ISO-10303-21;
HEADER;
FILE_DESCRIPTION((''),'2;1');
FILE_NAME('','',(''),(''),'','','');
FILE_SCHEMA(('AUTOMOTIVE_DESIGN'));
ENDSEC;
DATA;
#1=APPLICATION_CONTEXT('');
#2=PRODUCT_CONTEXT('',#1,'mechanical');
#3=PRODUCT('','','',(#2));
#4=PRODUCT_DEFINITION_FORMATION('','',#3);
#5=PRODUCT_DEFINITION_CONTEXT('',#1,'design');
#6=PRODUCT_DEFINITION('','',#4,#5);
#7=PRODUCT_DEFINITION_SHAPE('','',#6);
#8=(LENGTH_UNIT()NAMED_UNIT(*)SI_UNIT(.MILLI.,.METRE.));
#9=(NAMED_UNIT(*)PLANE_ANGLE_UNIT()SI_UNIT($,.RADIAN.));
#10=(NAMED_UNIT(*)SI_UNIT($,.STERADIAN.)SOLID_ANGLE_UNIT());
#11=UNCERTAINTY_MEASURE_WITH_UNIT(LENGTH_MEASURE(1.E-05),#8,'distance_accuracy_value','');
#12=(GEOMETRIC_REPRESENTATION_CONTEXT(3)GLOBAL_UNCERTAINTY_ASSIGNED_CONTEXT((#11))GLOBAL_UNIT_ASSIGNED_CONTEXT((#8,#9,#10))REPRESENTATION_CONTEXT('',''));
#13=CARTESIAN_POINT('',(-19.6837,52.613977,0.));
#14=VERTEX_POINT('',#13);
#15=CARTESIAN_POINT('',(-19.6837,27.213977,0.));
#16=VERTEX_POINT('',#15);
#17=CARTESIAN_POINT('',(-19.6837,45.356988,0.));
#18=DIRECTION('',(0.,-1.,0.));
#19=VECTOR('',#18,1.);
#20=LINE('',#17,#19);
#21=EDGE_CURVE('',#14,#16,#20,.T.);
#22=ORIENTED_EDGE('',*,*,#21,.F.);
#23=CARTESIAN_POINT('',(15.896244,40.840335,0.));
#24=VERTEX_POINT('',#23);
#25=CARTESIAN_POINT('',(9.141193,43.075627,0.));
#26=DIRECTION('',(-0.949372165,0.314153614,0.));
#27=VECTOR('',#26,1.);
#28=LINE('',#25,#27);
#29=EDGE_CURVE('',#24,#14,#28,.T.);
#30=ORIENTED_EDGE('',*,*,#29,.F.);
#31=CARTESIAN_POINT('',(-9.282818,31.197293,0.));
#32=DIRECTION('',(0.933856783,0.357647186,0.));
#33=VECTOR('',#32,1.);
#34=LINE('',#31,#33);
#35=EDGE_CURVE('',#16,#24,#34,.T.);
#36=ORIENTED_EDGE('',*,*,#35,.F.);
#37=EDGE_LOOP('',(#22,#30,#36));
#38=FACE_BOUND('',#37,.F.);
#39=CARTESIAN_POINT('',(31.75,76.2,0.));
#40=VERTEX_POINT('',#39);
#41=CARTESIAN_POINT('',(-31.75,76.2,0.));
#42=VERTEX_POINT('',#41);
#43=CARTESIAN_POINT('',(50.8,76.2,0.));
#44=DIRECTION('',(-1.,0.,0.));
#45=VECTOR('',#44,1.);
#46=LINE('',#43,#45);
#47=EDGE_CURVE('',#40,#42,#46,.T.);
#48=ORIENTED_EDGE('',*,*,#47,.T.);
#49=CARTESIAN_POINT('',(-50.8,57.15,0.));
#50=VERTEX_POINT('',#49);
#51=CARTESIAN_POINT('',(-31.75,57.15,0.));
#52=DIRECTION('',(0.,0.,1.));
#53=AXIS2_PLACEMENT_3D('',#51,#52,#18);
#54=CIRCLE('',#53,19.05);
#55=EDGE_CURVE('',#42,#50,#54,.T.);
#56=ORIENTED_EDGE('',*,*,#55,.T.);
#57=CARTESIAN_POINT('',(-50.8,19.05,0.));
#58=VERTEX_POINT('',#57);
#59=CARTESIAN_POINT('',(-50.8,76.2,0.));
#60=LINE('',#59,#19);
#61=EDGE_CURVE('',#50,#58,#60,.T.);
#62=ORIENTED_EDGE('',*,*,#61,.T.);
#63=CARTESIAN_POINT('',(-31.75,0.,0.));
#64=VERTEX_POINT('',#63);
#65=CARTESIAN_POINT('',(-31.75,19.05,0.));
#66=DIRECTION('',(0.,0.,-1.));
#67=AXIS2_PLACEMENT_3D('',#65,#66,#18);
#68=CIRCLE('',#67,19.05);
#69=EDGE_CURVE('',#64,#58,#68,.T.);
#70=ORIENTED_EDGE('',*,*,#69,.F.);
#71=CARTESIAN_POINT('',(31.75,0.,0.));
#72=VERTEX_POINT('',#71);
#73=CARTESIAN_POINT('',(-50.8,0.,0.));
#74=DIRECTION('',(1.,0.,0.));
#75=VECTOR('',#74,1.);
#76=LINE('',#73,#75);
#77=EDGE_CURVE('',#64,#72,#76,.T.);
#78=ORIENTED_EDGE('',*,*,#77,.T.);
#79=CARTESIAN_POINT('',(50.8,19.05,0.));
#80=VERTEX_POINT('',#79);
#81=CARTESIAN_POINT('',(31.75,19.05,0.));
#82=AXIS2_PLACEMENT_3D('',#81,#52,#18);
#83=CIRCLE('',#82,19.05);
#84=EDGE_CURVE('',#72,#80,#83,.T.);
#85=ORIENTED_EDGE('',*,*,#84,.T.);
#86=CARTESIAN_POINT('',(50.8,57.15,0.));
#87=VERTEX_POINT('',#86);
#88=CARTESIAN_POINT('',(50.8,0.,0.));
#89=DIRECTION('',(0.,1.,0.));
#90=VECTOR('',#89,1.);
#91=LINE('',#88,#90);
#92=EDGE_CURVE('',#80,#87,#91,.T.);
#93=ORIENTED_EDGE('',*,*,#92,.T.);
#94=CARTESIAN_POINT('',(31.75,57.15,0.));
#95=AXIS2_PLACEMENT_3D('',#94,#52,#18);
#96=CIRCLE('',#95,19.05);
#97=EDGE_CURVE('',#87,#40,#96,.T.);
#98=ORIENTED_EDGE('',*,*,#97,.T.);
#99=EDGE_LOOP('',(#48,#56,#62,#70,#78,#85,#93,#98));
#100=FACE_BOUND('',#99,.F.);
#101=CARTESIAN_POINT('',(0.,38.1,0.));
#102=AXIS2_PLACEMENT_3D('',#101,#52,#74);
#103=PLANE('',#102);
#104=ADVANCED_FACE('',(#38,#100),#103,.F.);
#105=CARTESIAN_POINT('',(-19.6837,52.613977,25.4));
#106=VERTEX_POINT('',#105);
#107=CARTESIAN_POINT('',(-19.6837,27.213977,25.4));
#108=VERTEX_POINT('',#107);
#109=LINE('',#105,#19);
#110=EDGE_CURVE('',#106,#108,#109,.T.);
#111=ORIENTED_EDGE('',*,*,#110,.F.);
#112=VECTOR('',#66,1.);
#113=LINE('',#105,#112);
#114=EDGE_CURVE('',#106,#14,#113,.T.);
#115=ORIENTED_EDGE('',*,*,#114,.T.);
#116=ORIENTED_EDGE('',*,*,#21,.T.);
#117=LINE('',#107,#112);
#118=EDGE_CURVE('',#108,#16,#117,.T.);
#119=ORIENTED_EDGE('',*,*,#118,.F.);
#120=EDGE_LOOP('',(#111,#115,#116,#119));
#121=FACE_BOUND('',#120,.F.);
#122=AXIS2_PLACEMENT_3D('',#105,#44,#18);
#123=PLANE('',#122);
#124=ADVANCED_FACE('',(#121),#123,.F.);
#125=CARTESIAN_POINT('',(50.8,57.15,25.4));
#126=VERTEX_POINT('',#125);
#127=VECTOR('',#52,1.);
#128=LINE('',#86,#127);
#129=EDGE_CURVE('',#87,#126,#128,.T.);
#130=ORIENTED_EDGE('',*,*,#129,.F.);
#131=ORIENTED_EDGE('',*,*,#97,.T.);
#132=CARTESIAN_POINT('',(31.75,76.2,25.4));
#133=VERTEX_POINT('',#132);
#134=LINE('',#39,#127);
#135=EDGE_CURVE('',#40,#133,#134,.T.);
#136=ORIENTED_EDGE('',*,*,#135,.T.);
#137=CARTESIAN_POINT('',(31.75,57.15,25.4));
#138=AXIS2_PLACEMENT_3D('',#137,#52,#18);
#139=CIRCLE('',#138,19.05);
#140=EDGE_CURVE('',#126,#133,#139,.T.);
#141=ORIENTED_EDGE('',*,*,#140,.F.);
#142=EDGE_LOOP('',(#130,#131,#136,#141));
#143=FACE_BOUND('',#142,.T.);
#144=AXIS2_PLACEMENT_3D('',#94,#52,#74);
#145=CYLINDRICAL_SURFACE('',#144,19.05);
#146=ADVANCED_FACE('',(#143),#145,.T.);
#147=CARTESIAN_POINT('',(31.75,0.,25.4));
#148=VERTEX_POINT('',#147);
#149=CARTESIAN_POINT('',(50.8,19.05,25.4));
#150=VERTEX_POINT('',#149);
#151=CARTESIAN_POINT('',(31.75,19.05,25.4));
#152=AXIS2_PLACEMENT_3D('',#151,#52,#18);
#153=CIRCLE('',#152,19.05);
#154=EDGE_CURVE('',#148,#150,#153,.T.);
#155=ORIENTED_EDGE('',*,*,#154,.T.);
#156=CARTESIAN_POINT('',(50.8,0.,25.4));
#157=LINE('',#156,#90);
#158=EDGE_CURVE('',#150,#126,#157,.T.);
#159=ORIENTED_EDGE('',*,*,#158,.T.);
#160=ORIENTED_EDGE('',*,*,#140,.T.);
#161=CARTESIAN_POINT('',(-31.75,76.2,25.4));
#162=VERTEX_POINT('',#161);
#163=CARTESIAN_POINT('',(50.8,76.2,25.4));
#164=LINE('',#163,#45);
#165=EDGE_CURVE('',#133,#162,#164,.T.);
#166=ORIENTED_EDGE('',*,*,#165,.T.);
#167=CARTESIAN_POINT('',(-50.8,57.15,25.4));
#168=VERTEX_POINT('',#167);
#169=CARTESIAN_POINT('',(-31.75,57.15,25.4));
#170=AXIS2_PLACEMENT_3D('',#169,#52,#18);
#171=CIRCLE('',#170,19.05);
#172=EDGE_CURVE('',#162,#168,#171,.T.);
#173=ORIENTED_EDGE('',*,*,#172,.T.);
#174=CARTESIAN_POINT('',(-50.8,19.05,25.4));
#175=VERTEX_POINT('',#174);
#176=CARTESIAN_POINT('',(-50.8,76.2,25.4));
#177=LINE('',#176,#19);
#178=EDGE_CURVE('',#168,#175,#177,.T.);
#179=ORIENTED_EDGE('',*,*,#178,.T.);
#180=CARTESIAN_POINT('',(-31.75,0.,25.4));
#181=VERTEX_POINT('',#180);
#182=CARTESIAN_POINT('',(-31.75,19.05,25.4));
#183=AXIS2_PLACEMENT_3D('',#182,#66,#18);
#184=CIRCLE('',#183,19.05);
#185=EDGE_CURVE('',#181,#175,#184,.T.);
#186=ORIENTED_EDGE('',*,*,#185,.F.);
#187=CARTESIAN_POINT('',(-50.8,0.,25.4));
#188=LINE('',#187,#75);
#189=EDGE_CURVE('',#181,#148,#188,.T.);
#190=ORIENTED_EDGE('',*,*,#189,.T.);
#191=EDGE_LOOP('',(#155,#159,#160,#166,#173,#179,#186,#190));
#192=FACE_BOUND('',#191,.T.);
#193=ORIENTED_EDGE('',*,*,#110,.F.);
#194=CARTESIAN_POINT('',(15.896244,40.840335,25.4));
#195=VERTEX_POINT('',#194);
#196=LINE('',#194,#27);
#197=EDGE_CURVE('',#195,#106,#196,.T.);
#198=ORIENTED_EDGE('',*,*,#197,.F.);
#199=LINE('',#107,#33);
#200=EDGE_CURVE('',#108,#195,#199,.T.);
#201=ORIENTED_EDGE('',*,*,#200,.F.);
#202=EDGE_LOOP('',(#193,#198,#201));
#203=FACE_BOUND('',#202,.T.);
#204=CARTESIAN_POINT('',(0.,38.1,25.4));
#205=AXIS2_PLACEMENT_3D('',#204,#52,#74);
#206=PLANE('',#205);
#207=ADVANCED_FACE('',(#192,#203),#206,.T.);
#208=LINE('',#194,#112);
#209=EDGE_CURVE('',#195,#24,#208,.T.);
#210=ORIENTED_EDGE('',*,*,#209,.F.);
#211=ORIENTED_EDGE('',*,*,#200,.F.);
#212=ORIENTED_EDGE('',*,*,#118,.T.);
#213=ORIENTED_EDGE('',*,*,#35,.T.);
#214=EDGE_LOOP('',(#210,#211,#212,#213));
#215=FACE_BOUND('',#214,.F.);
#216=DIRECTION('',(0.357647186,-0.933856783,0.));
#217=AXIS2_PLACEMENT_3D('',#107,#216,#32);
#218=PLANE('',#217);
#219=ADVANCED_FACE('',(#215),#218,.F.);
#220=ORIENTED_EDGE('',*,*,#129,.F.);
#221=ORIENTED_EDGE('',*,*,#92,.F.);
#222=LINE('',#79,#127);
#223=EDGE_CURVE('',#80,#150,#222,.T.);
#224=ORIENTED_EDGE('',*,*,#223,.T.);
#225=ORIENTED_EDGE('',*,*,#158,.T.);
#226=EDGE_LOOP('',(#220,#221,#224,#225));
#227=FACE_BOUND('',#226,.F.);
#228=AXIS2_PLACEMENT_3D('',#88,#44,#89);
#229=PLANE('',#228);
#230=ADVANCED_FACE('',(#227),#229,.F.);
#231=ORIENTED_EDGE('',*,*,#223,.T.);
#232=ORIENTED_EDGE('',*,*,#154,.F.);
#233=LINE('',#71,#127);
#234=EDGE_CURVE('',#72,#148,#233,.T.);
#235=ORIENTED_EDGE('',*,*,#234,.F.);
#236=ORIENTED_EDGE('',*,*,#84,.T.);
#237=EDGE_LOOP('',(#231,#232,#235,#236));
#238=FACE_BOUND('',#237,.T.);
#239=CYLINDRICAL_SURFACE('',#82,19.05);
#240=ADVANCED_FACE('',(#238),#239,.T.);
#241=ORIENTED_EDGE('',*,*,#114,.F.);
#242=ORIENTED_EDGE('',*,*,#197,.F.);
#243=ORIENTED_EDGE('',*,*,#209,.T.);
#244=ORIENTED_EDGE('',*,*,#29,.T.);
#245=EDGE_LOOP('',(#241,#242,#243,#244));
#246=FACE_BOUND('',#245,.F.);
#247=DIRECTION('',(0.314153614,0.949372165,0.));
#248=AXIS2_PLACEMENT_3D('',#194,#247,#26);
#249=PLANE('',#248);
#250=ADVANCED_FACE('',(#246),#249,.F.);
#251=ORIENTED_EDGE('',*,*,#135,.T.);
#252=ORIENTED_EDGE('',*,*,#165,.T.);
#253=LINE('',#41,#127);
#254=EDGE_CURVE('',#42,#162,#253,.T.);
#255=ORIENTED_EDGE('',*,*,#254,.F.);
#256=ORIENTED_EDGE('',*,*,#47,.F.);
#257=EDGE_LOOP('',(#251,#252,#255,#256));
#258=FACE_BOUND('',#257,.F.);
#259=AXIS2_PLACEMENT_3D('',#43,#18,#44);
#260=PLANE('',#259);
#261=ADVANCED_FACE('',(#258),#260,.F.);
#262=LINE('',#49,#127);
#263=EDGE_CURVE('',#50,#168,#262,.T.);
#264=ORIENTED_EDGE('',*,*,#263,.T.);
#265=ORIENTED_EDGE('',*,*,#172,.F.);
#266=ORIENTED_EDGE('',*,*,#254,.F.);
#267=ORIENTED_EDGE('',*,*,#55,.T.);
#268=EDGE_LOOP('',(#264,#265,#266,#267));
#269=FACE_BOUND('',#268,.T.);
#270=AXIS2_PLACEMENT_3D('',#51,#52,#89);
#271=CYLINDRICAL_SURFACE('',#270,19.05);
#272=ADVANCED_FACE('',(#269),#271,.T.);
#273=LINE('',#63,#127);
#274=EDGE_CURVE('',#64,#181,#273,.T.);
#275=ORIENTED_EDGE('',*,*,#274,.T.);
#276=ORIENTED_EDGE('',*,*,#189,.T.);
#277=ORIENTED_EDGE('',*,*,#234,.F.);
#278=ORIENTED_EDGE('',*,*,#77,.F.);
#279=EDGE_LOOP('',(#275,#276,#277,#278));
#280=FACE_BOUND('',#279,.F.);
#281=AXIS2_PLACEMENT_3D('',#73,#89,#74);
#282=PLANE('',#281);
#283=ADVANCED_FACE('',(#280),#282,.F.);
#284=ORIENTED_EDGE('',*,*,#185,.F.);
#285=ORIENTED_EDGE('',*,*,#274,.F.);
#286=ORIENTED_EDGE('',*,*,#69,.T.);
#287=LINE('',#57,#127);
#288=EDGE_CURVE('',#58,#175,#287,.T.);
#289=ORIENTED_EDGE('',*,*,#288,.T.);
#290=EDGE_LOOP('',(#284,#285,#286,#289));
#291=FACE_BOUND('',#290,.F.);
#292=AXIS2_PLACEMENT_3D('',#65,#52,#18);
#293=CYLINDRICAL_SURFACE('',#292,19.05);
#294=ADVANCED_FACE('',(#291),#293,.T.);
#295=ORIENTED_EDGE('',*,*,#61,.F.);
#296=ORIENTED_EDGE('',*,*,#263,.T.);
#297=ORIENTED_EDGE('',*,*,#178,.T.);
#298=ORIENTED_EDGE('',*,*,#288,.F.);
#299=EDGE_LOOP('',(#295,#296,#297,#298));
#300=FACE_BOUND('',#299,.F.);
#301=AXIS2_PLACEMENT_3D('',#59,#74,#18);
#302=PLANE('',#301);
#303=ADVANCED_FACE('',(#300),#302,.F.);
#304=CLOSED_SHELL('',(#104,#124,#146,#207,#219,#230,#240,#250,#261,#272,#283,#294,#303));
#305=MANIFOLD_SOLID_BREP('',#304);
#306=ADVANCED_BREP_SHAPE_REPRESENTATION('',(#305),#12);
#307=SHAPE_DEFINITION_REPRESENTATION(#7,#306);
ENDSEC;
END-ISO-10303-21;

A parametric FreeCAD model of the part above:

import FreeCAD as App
import Part
import Sketcher
Q = App.Units.Quantity


def edges_at(feature, points):
    """Names of the edges that pass closest to the given points."""
    edges = feature.Shape.Edges
    near = lambda p: min(range(len(edges)), key=lambda i: edges[i].distToShape(Part.Vertex(*p))[0])
    return sorted({f"Edge{near(p) + 1}" for p in points})

doc = App.newDocument("Part")
params = doc.addObject("Spreadsheet::Sheet", "Params")
for row, (alias, value) in enumerate([
    ("sketch1_width", "4 in"),
    ("sketch1_height", "3 in"),
    ("pad1_length", "1 in"),
    ("fillet_radius", "0.75 in"),
    ("sketch2_height", "1 in"),
    ("sketch2_length", "1.5 in"),
    ("pocket1_length", "10 in"),
], start=1):
    params.set(f"A{row}", alias)
    params.set(f"B{row}", "=" + value)
    params.setAlias(f"B{row}", alias)

body = doc.addObject("PartDesign::Body", "Body")

# Sketch on XY plane
sketch1 = body.newObject("Sketcher::SketchObject", "Sketch")
sketch1.AttachmentSupport = (doc.getObject("XY_Plane"), [""])
sketch1.MapMode = "FlatFace"
sketch1.addGeometry([
    Part.LineSegment(App.Vector(-50.8, 0, 0), App.Vector(50.8, 0, 0)),
    Part.LineSegment(App.Vector(50.8, 0, 0), App.Vector(50.8, 76.2, 0)),
    Part.LineSegment(App.Vector(50.8, 76.2, 0), App.Vector(-50.8, 76.2, 0)),
    Part.LineSegment(App.Vector(-50.8, 76.2, 0), App.Vector(-50.8, 0, 0)),
], False)
sketch1.addConstraint([
    Sketcher.Constraint("Coincident", 0, 2, 1, 1),
    Sketcher.Constraint("Coincident", 1, 2, 2, 1),
    Sketcher.Constraint("Coincident", 2, 2, 3, 1),
    Sketcher.Constraint("Coincident", 3, 2, 0, 1),
    Sketcher.Constraint("Horizontal", 0),
    Sketcher.Constraint("Vertical", 1),
    Sketcher.Constraint("Horizontal", 2),
    Sketcher.Constraint("Vertical", 3),
    Sketcher.Constraint("Symmetric", 0, 2, 3, 2, -1, 1),
    Sketcher.Constraint("DistanceX", 0, 1, 0, 2, Q("4 in")),
    Sketcher.Constraint("DistanceY", 1, 1, 1, 2, Q("3 in")),
])
sketch1.setExpression("Constraints[9]", "Params.sketch1_width")
sketch1.setExpression("Constraints[10]", "Params.sketch1_height")
pad1 = body.newObject("PartDesign::Pad", "Pad")
pad1.Profile = sketch1
pad1.setExpression("Length", "Params.pad1_length")
doc.recompute()

fillet = body.newObject("PartDesign::Fillet", "Fillet")
fillet.Base = (pad1, edges_at(pad1, [
    (-50.8, 0, 12.7),
    (50.8, 0, 12.7),
    (-50.8, 76.2, 12.7),
    (50.8, 76.2, 12.7),
]))
fillet.setExpression("Radius", "Params.fillet_radius")

# Sketch on XY plane
sketch2 = body.newObject("Sketcher::SketchObject", "Sketch001")
sketch2.AttachmentSupport = (doc.getObject("XY_Plane"), [""])
sketch2.MapMode = "FlatFace"
sketch2.AttachmentOffset = App.Placement(App.Vector(0, 0, 1 * 25.4), App.Rotation())
sketch2.addGeometry([
    Part.LineSegment(App.Vector(-19.6837, 52.613977, 0), App.Vector(-19.6837, 27.213977, 0)),
    Part.LineSegment(App.Vector(-19.6837, 27.213977, 0), App.Vector(15.896244, 40.840335, 0)),
    Part.LineSegment(App.Vector(15.896244, 40.840335, 0), App.Vector(-19.6837, 52.613977, 0)),
], False)
sketch2.addConstraint([
    Sketcher.Constraint("Coincident", 0, 2, 1, 1),
    Sketcher.Constraint("Coincident", 1, 2, 2, 1),
    Sketcher.Constraint("Coincident", 2, 2, 0, 1),
    Sketcher.Constraint("Vertical", 0),
    Sketcher.Constraint("DistanceY", 0, 2, 0, 1, Q("1 in")),
    Sketcher.Constraint("Distance", 1, Q("1.5 in")),
    Sketcher.Constraint("DistanceX", 0, 2, -1, 1, Q("19.6837 mm")),
    Sketcher.Constraint("Distance", 2, Q("37.477341 mm")),
    Sketcher.Constraint("DistanceY", -1, 1, 0, 2, Q("27.213977 mm")),
])
sketch2.setExpression("Constraints[4]", "Params.sketch2_height")
sketch2.setExpression("Constraints[5]", "Params.sketch2_length")
pocket1 = body.newObject("PartDesign::Pocket", "Pocket")
pocket1.Profile = sketch2
pocket1.setExpression("Length", "Params.pocket1_length")

doc.recompute()
